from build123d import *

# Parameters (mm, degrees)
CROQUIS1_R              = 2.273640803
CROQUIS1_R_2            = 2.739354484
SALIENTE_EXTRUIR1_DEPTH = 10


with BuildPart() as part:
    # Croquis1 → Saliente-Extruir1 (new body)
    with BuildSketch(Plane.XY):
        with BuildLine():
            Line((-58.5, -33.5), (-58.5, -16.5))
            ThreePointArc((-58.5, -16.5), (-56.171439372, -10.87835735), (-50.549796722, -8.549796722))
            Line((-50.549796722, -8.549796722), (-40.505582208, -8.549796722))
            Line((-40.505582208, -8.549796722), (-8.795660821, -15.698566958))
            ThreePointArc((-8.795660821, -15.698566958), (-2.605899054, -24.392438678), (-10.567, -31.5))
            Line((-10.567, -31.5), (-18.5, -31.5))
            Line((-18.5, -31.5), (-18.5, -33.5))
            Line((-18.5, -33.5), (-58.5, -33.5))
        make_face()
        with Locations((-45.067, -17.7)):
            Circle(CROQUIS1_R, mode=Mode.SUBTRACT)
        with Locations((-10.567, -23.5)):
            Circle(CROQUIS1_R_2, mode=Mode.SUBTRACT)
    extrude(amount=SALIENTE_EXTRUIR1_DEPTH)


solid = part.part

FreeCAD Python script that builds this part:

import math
import FreeCAD as App
import Part
import Sketcher

doc = App.newDocument("Part")
body = doc.addObject("PartDesign::Body", "Body")

# Sketch on XY plane
sketch1 = body.newObject("Sketcher::SketchObject", "Sketch")
sketch1.AttachmentSupport = (doc.getObject("XY_Plane"), [""])
sketch1.MapMode = "FlatFace"
sketch1.addGeometry(Part.LineSegment(App.Vector(-58.5, -16.5, 0), App.Vector(-58.5, -33.5, 0)), False)
sketch1.addGeometry(Part.LineSegment(App.Vector(-58.5, -33.5, 0), App.Vector(-18.5, -33.5, 0)), False)
sketch1.addGeometry(Part.LineSegment(App.Vector(-18.5, -33.5, 0), App.Vector(-18.5, -31.5, 0)), False)
sketch1.addGeometry(Part.LineSegment(App.Vector(-18.5, -31.5, 0), App.Vector(-10.6, -31.5, 0)), False)
sketch1.addGeometry(Part.ArcOfCircle(Part.Circle(App.Vector(-10.6, -23.5, 0), App.Vector(0, 0, 1), 8), math.radians(-90), math.radians(77)), False)
sketch1.addGeometry(Part.LineSegment(App.Vector(-8.8, -15.7, 0), App.Vector(-40.5, -8.5, 0)), False)
sketch1.addGeometry(Part.LineSegment(App.Vector(-40.5, -8.5, 0), App.Vector(-50.5, -8.5, 0)), False)
sketch1.addGeometry(Part.ArcOfCircle(Part.Circle(App.Vector(-50.5, -16.5, 0), App.Vector(0, 0, 1), 8), math.radians(90), math.radians(180)), False)
sketch1.addGeometry(Part.Circle(App.Vector(-10.6, -23.5, 0), App.Vector(0, 0, 1), 2.7), False)
sketch1.addGeometry(Part.Circle(App.Vector(-45.1, -17.7, 0), App.Vector(0, 0, 1), 2.3), False)
sketch1.addConstraint(Sketcher.Constraint("Coincident", 0, 2, 1, 1))
sketch1.addConstraint(Sketcher.Constraint("Coincident", 1, 2, 2, 1))
sketch1.addConstraint(Sketcher.Constraint("Coincident", 2, 2, 3, 1))
sketch1.addConstraint(Sketcher.Constraint("Coincident", 3, 2, 4, 1))
sketch1.addConstraint(Sketcher.Constraint("Tangent", 4, 2, 5, 1))
sketch1.addConstraint(Sketcher.Constraint("Coincident", 5, 2, 6, 1))
sketch1.addConstraint(Sketcher.Constraint("Tangent", 6, 2, 7, 1))
sketch1.addConstraint(Sketcher.Constraint("Tangent", 7, 2, 0, 1))
sketch1.addConstraint(Sketcher.Constraint("Vertical", 0))
sketch1.addConstraint(Sketcher.Constraint("Horizontal", 1))
sketch1.addConstraint(Sketcher.Constraint("Vertical", 2))
sketch1.addConstraint(Sketcher.Constraint("Horizontal", 3))
sketch1.addConstraint(Sketcher.Constraint("Horizontal", 6))
sketch1.addConstraint(Sketcher.Constraint("Vertical", 8, 3, 3, 2))
sketch1.addConstraint(Sketcher.Constraint("DistanceX", 1, 1, 1, 2, 40.0))
sketch1.addConstraint(Sketcher.Constraint("DistanceY", 0, 2, 0, 1, 17.0))
sketch1.addConstraint(Sketcher.Constraint("DistanceY", 2, 1, 2, 2, 2.0))
sketch1.addConstraint(Sketcher.Constraint("DistanceY", 8, 3, 7, 3, 7.0))
sketch1.addConstraint(Sketcher.Constraint("DistanceY", 7, 3, -1, 1, 16.5))
sketch1.addConstraint(Sketcher.Constraint("DistanceY", 9, 3, -1, 1, 17.7))
sketch1.addConstraint(Sketcher.Constraint("DistanceX", 0, 2, -1, 1, 58.5))
sketch1.addConstraint(Sketcher.Constraint("DistanceX", 9, 3, 8, 3, 34.5))
sketch1.addConstraint(Sketcher.Constraint("Diameter", 8, 5.478709))
sketch1.addConstraint(Sketcher.Constraint("Diameter", 9, 4.547282))
sketch1.addConstraint(Sketcher.Constraint("DistanceX", 3, 1, 3, 2, 7.933))
sketch1.addConstraint(Sketcher.Constraint("Radius", 4, 7.998636))
sketch1.addConstraint(Sketcher.Constraint("Radius", 7, 7.950203))
sketch1.addConstraint(Sketcher.Constraint("DistanceX", 6, 2, 6, 1, 10.044215))
sketch1.addConstraint(Sketcher.Constraint("DistanceX", 4, 2, -1, 1, 8.795661))
pad1 = body.newObject("PartDesign::Pad", "Pad")
pad1.Profile = sketch1
pad1.Length = 10

doc.recompute()
